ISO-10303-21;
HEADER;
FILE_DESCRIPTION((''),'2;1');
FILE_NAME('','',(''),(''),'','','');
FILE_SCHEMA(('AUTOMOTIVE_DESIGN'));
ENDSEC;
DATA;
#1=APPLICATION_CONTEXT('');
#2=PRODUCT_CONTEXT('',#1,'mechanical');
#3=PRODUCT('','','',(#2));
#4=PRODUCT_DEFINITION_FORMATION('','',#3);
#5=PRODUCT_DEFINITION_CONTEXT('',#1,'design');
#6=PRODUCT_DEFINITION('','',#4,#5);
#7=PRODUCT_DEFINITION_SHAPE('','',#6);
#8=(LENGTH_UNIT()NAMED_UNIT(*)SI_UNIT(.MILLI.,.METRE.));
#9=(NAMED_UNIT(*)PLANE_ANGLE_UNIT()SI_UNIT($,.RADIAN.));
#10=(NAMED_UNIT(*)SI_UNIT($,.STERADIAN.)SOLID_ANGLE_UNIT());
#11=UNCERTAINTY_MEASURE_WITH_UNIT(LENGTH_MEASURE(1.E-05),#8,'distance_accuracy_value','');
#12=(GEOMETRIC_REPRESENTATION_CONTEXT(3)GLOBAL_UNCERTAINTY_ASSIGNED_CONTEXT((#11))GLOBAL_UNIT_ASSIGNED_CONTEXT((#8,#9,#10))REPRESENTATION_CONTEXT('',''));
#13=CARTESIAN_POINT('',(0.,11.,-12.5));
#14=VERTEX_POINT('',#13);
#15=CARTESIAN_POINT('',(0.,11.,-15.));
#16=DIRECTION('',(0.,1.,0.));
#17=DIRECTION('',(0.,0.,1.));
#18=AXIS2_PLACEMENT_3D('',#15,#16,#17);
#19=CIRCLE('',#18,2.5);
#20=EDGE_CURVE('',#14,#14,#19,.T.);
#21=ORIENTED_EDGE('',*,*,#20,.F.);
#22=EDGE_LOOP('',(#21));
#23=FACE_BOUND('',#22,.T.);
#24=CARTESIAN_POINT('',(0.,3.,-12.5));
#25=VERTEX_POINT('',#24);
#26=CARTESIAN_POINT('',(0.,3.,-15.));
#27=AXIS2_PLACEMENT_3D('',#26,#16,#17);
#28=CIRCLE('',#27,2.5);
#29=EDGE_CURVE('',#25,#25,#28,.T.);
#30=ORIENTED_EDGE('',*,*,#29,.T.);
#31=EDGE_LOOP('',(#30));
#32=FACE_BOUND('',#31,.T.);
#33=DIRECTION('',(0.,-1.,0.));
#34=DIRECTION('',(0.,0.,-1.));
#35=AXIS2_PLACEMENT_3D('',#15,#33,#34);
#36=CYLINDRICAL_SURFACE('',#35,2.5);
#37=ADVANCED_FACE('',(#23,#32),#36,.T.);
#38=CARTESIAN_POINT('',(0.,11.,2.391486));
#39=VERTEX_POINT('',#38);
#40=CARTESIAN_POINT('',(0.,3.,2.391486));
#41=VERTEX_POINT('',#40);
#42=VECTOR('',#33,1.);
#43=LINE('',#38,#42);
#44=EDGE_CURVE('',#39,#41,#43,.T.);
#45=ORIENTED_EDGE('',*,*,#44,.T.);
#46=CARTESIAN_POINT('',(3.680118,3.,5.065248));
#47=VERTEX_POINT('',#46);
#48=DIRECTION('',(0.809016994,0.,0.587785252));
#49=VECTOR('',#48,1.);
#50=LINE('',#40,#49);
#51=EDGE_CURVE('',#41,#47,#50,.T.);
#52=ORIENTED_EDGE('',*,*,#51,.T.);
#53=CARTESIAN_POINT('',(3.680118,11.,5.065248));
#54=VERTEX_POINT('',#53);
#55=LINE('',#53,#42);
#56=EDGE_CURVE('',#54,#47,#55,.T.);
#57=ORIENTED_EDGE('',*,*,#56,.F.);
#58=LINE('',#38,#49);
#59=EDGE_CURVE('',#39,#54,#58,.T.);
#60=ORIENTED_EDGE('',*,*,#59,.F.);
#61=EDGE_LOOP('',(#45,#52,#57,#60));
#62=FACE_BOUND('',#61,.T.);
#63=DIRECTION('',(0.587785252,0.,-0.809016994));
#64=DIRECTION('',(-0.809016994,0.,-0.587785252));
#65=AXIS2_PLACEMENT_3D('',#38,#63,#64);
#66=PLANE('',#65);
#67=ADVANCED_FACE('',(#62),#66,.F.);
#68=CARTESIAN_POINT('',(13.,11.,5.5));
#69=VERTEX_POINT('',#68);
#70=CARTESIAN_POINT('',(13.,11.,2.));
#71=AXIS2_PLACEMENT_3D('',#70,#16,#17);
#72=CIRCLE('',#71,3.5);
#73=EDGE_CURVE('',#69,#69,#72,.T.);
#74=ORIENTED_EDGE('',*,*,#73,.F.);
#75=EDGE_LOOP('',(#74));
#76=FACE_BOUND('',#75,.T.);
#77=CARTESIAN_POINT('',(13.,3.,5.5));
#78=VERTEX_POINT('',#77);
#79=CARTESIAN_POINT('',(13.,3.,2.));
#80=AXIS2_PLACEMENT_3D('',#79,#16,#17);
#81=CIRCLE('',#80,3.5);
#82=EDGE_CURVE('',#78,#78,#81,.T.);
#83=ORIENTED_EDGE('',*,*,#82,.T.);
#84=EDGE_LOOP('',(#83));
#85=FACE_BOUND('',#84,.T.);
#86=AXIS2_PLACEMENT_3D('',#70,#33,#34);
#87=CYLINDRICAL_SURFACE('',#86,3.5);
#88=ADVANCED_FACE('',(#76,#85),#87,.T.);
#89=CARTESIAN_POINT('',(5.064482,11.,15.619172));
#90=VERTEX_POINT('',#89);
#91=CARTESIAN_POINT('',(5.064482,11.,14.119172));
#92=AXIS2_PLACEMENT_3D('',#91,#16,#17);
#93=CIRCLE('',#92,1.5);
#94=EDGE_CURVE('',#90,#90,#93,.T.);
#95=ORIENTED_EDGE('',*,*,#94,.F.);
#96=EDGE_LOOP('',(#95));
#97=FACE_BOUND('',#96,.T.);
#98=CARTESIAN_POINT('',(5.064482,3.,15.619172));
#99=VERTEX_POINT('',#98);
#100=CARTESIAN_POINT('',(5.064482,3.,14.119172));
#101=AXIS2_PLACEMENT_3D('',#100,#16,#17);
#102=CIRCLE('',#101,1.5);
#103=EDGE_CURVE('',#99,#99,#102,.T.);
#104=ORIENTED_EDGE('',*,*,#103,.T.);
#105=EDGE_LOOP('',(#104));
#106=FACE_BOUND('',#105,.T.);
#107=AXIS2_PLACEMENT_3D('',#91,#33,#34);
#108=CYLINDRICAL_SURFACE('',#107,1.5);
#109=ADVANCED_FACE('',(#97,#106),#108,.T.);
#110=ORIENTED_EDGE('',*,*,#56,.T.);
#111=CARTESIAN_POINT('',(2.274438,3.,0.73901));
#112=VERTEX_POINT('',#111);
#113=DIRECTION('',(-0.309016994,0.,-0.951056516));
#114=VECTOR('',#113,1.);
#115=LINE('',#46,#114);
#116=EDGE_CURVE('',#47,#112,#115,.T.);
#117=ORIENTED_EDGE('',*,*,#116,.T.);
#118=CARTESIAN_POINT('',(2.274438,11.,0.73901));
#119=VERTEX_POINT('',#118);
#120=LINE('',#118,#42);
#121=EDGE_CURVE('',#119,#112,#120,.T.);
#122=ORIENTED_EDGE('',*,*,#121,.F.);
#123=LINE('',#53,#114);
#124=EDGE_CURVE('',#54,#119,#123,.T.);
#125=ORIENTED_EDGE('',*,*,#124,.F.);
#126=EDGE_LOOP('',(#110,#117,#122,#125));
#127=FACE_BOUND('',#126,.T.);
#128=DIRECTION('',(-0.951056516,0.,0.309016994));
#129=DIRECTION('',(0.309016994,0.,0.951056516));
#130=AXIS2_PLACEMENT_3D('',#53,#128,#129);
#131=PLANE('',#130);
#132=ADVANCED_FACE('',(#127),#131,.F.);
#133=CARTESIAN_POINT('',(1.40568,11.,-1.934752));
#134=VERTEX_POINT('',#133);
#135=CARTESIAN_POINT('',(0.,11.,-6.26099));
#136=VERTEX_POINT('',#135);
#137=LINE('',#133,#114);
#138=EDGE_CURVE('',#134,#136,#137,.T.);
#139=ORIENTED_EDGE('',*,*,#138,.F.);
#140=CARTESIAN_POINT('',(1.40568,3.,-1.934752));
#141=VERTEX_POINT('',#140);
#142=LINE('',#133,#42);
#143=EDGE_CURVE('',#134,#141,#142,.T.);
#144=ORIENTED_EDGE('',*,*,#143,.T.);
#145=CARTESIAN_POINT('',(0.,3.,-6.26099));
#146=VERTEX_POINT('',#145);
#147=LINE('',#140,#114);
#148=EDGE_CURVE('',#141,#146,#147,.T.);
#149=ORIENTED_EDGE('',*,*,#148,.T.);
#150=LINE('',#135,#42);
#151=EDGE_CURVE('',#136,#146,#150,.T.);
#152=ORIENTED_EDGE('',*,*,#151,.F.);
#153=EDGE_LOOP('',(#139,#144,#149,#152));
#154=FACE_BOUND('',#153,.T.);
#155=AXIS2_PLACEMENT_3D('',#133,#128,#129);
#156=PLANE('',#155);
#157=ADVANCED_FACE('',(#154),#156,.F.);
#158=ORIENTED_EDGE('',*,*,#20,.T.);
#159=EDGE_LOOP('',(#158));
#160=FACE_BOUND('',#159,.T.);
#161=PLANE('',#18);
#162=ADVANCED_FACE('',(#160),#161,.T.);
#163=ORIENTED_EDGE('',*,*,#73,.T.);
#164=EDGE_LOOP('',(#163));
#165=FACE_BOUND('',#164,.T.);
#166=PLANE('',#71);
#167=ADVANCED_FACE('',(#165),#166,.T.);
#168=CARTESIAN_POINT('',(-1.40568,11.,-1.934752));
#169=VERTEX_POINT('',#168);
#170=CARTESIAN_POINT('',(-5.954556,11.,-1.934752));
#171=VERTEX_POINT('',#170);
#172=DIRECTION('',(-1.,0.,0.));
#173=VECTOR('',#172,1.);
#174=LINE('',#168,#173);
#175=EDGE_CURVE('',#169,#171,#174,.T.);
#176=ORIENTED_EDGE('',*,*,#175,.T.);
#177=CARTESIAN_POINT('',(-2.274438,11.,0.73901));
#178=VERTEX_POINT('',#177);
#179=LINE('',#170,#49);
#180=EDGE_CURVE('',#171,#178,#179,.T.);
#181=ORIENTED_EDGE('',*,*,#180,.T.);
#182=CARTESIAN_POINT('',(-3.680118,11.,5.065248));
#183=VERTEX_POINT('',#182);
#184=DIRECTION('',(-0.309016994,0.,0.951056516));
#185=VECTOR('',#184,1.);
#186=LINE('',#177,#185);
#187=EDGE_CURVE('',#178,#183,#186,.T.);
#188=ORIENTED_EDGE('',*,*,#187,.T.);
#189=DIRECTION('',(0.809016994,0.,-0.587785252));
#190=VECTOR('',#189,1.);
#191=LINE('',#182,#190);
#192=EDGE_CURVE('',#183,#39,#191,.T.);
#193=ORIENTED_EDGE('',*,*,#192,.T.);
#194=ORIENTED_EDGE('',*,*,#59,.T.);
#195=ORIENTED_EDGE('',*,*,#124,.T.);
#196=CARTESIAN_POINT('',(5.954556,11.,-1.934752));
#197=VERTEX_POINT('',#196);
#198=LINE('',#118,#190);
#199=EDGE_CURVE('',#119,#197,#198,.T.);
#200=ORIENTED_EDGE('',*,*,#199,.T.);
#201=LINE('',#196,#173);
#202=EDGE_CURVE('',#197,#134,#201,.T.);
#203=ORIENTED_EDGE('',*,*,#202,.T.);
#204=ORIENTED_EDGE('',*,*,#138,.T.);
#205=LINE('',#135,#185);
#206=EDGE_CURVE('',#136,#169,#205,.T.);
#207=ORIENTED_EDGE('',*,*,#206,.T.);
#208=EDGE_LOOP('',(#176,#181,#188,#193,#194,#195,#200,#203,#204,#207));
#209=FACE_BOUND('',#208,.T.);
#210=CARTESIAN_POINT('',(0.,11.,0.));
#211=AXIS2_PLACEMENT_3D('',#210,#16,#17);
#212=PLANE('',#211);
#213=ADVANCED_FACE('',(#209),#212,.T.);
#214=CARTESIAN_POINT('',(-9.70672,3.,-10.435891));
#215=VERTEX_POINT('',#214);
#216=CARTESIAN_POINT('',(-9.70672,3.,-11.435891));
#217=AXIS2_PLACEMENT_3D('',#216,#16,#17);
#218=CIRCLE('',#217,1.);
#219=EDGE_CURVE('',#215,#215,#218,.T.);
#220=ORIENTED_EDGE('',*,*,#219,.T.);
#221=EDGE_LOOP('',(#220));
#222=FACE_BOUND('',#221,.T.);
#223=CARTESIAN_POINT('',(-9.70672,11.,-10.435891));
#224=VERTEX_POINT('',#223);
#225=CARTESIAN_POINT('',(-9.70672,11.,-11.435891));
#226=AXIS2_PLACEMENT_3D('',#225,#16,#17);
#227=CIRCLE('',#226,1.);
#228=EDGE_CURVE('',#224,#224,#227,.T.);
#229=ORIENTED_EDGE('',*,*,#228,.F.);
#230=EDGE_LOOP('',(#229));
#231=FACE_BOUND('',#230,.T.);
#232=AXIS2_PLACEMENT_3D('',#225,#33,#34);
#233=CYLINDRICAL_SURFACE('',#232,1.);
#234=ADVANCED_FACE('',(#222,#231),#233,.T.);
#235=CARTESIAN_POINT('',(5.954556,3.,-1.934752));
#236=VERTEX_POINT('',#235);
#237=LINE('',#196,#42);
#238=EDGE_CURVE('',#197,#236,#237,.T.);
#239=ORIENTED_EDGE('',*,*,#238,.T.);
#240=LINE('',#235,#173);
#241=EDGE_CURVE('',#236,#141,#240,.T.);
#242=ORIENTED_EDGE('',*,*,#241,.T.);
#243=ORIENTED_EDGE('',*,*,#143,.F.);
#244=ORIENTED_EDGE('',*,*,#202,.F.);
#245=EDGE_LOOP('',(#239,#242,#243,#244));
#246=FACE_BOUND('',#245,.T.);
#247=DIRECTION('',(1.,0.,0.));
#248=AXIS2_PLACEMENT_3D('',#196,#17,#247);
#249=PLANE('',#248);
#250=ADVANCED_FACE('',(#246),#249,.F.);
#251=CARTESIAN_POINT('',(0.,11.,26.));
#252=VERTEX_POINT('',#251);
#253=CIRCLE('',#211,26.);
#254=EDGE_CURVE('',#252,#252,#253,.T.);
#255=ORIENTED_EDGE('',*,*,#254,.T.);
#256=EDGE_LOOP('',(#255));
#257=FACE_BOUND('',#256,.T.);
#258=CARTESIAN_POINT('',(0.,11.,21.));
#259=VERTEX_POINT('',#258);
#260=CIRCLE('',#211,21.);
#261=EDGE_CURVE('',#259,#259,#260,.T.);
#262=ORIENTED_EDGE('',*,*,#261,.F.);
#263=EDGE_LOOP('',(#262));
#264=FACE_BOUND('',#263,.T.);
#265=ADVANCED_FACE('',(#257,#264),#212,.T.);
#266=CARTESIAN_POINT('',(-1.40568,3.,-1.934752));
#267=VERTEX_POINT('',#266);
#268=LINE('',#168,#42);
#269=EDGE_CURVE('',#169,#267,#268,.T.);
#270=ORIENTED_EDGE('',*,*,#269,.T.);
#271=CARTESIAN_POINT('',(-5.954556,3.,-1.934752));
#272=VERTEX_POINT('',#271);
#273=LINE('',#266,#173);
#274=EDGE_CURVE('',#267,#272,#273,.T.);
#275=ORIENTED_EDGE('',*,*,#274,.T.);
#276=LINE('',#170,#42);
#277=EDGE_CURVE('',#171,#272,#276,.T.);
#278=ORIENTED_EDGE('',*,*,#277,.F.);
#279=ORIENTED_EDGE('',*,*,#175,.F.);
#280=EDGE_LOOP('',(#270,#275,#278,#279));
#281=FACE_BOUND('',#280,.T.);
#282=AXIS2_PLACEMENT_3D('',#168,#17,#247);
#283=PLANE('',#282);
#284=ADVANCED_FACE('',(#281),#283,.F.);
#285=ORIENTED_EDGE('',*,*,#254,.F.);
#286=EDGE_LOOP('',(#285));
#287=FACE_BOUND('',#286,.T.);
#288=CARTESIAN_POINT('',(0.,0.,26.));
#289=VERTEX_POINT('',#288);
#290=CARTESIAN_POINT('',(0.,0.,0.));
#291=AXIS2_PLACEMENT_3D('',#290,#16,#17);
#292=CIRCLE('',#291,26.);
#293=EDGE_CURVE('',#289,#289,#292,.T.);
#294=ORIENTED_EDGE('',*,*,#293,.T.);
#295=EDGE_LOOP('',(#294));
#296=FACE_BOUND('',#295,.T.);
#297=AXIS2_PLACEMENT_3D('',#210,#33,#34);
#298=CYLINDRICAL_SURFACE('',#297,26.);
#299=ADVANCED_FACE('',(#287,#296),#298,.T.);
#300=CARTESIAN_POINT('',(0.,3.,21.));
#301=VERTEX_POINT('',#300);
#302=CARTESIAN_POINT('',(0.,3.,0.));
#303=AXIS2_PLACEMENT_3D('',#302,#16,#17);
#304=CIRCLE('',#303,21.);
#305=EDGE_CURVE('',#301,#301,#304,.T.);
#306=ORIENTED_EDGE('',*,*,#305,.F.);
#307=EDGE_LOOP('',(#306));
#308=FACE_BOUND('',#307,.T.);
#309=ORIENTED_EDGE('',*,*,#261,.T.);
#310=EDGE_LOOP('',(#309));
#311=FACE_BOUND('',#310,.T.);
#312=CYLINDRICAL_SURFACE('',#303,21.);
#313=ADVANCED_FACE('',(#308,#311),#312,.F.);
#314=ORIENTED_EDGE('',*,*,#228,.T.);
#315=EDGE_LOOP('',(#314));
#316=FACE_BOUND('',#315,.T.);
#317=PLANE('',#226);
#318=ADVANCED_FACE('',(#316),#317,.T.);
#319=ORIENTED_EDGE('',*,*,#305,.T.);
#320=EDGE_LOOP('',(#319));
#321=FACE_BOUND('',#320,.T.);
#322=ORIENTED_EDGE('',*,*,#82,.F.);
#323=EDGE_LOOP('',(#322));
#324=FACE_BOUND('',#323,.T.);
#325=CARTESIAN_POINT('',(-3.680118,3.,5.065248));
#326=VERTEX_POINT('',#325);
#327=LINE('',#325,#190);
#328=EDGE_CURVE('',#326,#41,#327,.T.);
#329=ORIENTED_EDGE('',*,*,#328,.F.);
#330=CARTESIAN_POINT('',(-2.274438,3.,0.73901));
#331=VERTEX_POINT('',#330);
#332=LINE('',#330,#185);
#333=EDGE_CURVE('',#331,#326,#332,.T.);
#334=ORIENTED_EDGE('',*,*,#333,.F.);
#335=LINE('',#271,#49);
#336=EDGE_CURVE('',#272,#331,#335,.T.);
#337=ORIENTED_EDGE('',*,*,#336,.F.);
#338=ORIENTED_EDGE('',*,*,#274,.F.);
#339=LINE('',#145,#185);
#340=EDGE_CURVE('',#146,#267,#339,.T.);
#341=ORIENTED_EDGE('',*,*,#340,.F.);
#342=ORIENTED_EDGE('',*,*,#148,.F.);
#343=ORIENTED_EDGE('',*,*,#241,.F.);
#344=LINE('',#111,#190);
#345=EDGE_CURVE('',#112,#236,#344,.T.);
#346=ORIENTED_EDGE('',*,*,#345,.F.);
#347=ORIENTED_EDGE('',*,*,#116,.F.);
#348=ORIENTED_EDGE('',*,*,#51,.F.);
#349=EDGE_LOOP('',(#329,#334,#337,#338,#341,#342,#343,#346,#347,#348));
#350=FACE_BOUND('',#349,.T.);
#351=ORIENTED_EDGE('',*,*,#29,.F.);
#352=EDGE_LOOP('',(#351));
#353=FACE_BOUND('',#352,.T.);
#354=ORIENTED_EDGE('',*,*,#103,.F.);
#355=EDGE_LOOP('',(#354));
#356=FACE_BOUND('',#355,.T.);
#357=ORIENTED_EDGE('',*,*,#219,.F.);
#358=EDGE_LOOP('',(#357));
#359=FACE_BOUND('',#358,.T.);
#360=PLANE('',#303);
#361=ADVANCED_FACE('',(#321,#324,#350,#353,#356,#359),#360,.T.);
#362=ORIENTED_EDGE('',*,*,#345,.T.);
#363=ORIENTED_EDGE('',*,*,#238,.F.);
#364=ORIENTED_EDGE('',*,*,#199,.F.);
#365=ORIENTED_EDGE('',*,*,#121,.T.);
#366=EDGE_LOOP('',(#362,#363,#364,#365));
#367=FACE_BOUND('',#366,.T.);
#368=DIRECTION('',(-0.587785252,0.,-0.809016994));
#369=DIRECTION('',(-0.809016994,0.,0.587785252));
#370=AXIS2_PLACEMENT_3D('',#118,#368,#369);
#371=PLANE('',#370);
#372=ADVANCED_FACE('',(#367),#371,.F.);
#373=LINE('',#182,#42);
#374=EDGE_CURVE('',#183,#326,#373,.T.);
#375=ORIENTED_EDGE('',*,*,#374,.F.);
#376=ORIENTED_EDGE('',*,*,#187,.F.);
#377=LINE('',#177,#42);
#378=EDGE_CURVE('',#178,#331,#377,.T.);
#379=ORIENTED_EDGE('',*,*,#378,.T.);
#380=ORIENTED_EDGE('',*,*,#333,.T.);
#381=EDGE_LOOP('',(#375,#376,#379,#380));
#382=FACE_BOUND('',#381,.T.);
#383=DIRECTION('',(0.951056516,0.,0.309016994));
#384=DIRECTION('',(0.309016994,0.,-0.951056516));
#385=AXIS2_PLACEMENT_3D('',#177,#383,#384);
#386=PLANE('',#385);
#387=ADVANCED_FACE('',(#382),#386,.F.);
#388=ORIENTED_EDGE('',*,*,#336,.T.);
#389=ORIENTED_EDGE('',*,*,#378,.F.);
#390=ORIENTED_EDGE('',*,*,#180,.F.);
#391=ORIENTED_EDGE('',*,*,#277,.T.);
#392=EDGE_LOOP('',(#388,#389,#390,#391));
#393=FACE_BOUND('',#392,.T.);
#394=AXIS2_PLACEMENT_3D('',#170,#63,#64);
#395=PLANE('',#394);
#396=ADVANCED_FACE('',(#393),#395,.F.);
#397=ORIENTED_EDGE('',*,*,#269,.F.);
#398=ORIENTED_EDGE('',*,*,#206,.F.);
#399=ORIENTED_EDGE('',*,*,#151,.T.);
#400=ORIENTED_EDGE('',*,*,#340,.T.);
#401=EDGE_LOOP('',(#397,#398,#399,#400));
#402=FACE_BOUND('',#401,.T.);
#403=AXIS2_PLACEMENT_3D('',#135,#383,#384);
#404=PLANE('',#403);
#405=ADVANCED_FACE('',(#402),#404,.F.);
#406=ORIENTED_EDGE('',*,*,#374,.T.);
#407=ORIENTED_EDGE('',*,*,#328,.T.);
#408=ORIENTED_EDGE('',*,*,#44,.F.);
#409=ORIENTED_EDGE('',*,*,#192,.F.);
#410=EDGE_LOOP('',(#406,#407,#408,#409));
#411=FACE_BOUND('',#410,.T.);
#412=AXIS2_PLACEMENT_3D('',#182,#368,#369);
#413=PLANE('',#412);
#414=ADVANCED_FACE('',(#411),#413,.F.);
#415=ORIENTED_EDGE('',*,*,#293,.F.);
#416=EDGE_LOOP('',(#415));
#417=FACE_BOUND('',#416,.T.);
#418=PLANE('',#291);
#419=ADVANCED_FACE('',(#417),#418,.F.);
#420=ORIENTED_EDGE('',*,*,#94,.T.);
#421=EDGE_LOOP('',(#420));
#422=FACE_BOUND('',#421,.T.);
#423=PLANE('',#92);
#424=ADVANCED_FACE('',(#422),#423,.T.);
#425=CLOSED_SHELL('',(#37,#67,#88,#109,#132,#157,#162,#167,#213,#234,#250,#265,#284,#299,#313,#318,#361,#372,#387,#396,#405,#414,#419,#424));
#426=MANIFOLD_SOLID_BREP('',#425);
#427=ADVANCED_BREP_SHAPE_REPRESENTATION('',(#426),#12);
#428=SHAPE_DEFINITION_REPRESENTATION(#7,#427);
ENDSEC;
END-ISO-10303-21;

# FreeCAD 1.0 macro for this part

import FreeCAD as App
import Part
import Sketcher

V = App.Vector
Q = App.Units.Quantity

doc = App.newDocument("Part")
params = doc.addObject("Spreadsheet::Sheet", "Params")
for row, (alias, value) in enumerate([
    ("sketch1_diameter", "52 mm"),
    ("pad1_length", "11 mm"),
    ("sketch2_diameter", "42 mm"),
    ("pocket1_length", "8 mm"),
    ("pad2_length", "8 mm"),
    ("sketch4_diameter", "2 mm"),
    ("pad3_length", "8 mm"),
    ("sketch5_diameter", "5 mm"),
    ("pad4_length", "8 mm"),
    ("sketch6_diameter", "7 mm"),
    ("pad5_length", "8 mm"),
    ("sketch7_diameter", "3 mm"),
    ("pad6_length", "8 mm"),
], start=1):
    params.set(f"A{row}", alias)
    params.set(f"B{row}", "=" + value)
    params.setAlias(f"B{row}", alias)

body = doc.addObject("PartDesign::Body", "Body")

# Sketch on XZ plane
sketch1 = body.newObject("Sketcher::SketchObject", "Sketch")
sketch1.AttachmentSupport = (doc.getObject("XZ_Plane"), [""])
sketch1.MapMode = "FlatFace"
sketch1.addGeometry(Part.Circle(V(0, 0, 0), V(0, 0, 1), 26), False)
sketch1.addConstraint([
    Sketcher.Constraint("Coincident", 0, 3, -1, 1),
    Sketcher.Constraint("Diameter", 0, Q("52 mm")),
])
sketch1.setExpression("Constraints[1]", "Params.sketch1_diameter")
pad1 = body.newObject("PartDesign::Pad", "Pad")
pad1.Profile = sketch1
pad1.setExpression("Length", "Params.pad1_length")
pad1.Reversed = True

# Sketch on XZ plane
sketch2 = body.newObject("Sketcher::SketchObject", "Sketch001")
sketch2.AttachmentSupport = (doc.getObject("XZ_Plane"), [""])
sketch2.MapMode = "FlatFace"
sketch2.AttachmentOffset = App.Placement(V(0, 0, -11), App.Rotation())
sketch2.addGeometry(Part.Circle(V(0, 0, 0), V(0, 0, 1), 21), False)
sketch2.addConstraint([
    Sketcher.Constraint("Coincident", 0, 3, -1, 1),
    Sketcher.Constraint("Diameter", 0, Q("42 mm")),
])
sketch2.setExpression("Constraints[1]", "Params.sketch2_diameter")
pocket1 = body.newObject("PartDesign::Pocket", "Pocket")
pocket1.Profile = sketch2
pocket1.setExpression("Length", "Params.pocket1_length")
pocket1.Reversed = True

# Sketch on XZ plane
sketch3 = body.newObject("Sketcher::SketchObject", "Sketch002")
sketch3.AttachmentSupport = (doc.getObject("XZ_Plane"), [""])
sketch3.MapMode = "FlatFace"
sketch3.AttachmentOffset = App.Placement(V(0, 0, -3), App.Rotation())
sketch3.addGeometry([
    Part.LineSegment(V(0, -6.3, 0), V(-1.4, -1.9, 0)),  # 0
    Part.LineSegment(V(-1.4, -1.9, 0), V(-6, -1.9, 0)),  # 1
    Part.LineSegment(V(-6, -1.9, 0), V(-2.3, 0.7, 0)),  # 2
    Part.LineSegment(V(-2.3, 0.7, 0), V(-3.7, 5.1, 0)),  # 3
    Part.LineSegment(V(-3.7, 5.1, 0), V(0, 2.4, 0)),  # 4
    Part.LineSegment(V(0, 2.4, 0), V(3.7, 5.1, 0)),  # 5
    Part.LineSegment(V(3.7, 5.1, 0), V(2.3, 0.7, 0)),  # 6
    Part.LineSegment(V(2.3, 0.7, 0), V(6, -1.9, 0)),  # 7
    Part.LineSegment(V(6, -1.9, 0), V(1.4, -1.9, 0)),  # 8
    Part.LineSegment(V(1.4, -1.9, 0), V(0, -6.3, 0)),  # 9
], False)
sketch3.addConstraint([
    Sketcher.Constraint("Coincident", 0, 2, 1, 1),
    Sketcher.Constraint("Coincident", 1, 2, 2, 1),
    Sketcher.Constraint("Coincident", 2, 2, 3, 1),
    Sketcher.Constraint("Coincident", 3, 2, 4, 1),
    Sketcher.Constraint("Coincident", 4, 2, 5, 1),
    Sketcher.Constraint("Coincident", 5, 2, 6, 1),
    Sketcher.Constraint("Coincident", 6, 2, 7, 1),
    Sketcher.Constraint("Coincident", 7, 2, 8, 1),
    Sketcher.Constraint("Coincident", 8, 2, 9, 1),
    Sketcher.Constraint("Coincident", 9, 2, 0, 1),
    Sketcher.Constraint("Horizontal", 1),
    Sketcher.Constraint("Horizontal", 8),
    Sketcher.Constraint("Symmetric", 3, 2, 5, 2, -2),
    Sketcher.Constraint("Symmetric", 2, 2, 6, 2, -2),
    Sketcher.Constraint("Symmetric", 1, 2, 7, 2, -2),
    Sketcher.Constraint("PointOnObject", 4, 2, -2),
    Sketcher.Constraint("PointOnObject", 9, 2, -2),
    Sketcher.Constraint("Parallel", 0, 3),
    Sketcher.Constraint("Parallel", 2, 5),
    Sketcher.Constraint("Parallel", 6, 9),
    Sketcher.Constraint("Equal", 0, 2),
    Sketcher.Constraint("Equal", 2, 3),
    Sketcher.Constraint("Equal", 3, 4),
    Sketcher.Constraint("Angle", 0, Q("108 deg")),
    Sketcher.Constraint("Angle", 2, Q("36 deg")),
    Sketcher.Constraint("DistanceY", 1, 2, 3, 2, Q("7 mm")),
    Sketcher.Constraint("DistanceY", -1, 1, 2, 2, Q("0.73901 mm")),
])
pad2 = body.newObject("PartDesign::Pad", "Pad001")
pad2.Profile = sketch3
pad2.setExpression("Length", "Params.pad2_length")
pad2.Reversed = True

# Sketch on XZ plane
sketch4 = body.newObject("Sketcher::SketchObject", "Sketch003")
sketch4.AttachmentSupport = (doc.getObject("XZ_Plane"), [""])
sketch4.MapMode = "FlatFace"
sketch4.AttachmentOffset = App.Placement(V(0, 0, -3), App.Rotation())
sketch4.addGeometry(Part.Circle(V(-9.7, -11.4, 0), V(0, 0, 1), 1), False)
sketch4.addConstraint([
    Sketcher.Constraint("Diameter", 0, Q("2 mm")),
    Sketcher.Constraint("DistanceX", 0, 3, -1, 1, Q("9.70672 mm")),
    Sketcher.Constraint("DistanceY", 0, 3, -1, 1, Q("11.435891 mm")),
])
sketch4.setExpression("Constraints[0]", "Params.sketch4_diameter")
pad3 = body.newObject("PartDesign::Pad", "Pad002")
pad3.Profile = sketch4
pad3.setExpression("Length", "Params.pad3_length")
pad3.Reversed = True

# Sketch on XZ plane
sketch5 = body.newObject("Sketcher::SketchObject", "Sketch004")
sketch5.AttachmentSupport = (doc.getObject("XZ_Plane"), [""])
sketch5.MapMode = "FlatFace"
sketch5.AttachmentOffset = App.Placement(V(0, 0, -3), App.Rotation())
sketch5.addGeometry(Part.Circle(V(0, -15, 0), V(0, 0, 1), 2.5), False)
sketch5.addConstraint([
    Sketcher.Constraint("PointOnObject", 0, 3, -2),
    Sketcher.Constraint("Diameter", 0, Q("5 mm")),
    Sketcher.Constraint("DistanceY", 0, 3, -1, 1, Q("15 mm")),
])
sketch5.setExpression("Constraints[1]", "Params.sketch5_diameter")
pad4 = body.newObject("PartDesign::Pad", "Pad003")
pad4.Profile = sketch5
pad4.setExpression("Length", "Params.pad4_length")
pad4.Reversed = True

# Sketch on XZ plane
sketch6 = body.newObject("Sketcher::SketchObject", "Sketch005")
sketch6.AttachmentSupport = (doc.getObject("XZ_Plane"), [""])
sketch6.MapMode = "FlatFace"
sketch6.AttachmentOffset = App.Placement(V(0, 0, -3), App.Rotation())
sketch6.addGeometry(Part.Circle(V(13, 2, 0), V(0, 0, 1), 3.5), False)
sketch6.addConstraint([
    Sketcher.Constraint("Diameter", 0, Q("7 mm")),
    Sketcher.Constraint("DistanceX", -1, 1, 0, 3, Q("13 mm")),
    Sketcher.Constraint("DistanceY", -1, 1, 0, 3, Q("2 mm")),
])
sketch6.setExpression("Constraints[0]", "Params.sketch6_diameter")
pad5 = body.newObject("PartDesign::Pad", "Pad004")
pad5.Profile = sketch6
pad5.setExpression("Length", "Params.pad5_length")
pad5.Reversed = True

# Sketch on XZ plane
sketch7 = body.newObject("Sketcher::SketchObject", "Sketch006")
sketch7.AttachmentSupport = (doc.getObject("XZ_Plane"), [""])
sketch7.MapMode = "FlatFace"
sketch7.AttachmentOffset = App.Placement(V(0, 0, -3), App.Rotation())
sketch7.addGeometry(Part.Circle(V(5.1, 14.1, 0), V(0, 0, 1), 1.5), False)
sketch7.addConstraint([
    Sketcher.Constraint("Diameter", 0, Q("3 mm")),
    Sketcher.Constraint("DistanceX", -1, 1, 0, 3, Q("5.064482 mm")),
    Sketcher.Constraint("DistanceY", -1, 1, 0, 3, Q("14.119172 mm")),
])
sketch7.setExpression("Constraints[0]", "Params.sketch7_diameter")
pad6 = body.newObject("PartDesign::Pad", "Pad005")
pad6.Profile = sketch7
pad6.setExpression("Length", "Params.pad6_length")
pad6.Reversed = True

doc.recompute()
